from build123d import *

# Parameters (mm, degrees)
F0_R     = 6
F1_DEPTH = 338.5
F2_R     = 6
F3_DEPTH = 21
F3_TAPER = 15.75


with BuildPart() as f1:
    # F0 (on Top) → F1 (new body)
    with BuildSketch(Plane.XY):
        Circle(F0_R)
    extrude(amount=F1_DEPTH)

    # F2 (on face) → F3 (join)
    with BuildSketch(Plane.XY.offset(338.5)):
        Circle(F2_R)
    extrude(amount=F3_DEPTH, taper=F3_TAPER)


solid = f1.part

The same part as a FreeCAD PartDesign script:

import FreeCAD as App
import Part
import Sketcher
from FreeCAD import Vector
Q = App.Units.Quantity

doc = App.newDocument("Part")
params = doc.addObject("Spreadsheet::Sheet", "Params")
for row, (alias, value) in enumerate([
    ("sketch1_diameter", "12 mm"),
    ("pad1_length", "338.5 mm"),
    ("sketch2_diameter", "12 mm"),
    ("pad2_length", "21 mm"),
    ("pad2_taper", "-15.75 deg"),
], start=1):
    params.set(f"A{row}", alias)
    params.set(f"B{row}", "=" + value)
    params.setAlias(f"B{row}", alias)

body = doc.addObject("PartDesign::Body", "Body")

sketch1 = body.newObject("Sketcher::SketchObject", "Sketch")
sketch1.AttachmentSupport = (doc.getObject("XY_Plane"), [""])
sketch1.MapMode = "FlatFace"
sketch1.addGeometry(Part.Circle(Vector(0, 0, 0), Vector(0, 0, 1), 6), False)
sketch1.addConstraint([
    Sketcher.Constraint("Coincident", 0, 3, -1, 1),
    Sketcher.Constraint("Diameter", 0, Q("12 mm")),
])
sketch1.setExpression("Constraints[1]", "Params.sketch1_diameter")
pad1 = body.newObject("PartDesign::Pad", "Pad")
pad1.Profile = sketch1
pad1.setExpression("Length", "Params.pad1_length")

sketch2 = body.newObject("Sketcher::SketchObject", "Sketch001")
sketch2.AttachmentSupport = (doc.getObject("XY_Plane"), [""])
sketch2.MapMode = "FlatFace"
sketch2.AttachmentOffset = App.Placement(Vector(0, 0, 338.5), App.Rotation())
sketch2.addGeometry(Part.Circle(Vector(0, 0, 0), Vector(0, 0, 1), 6), False)
sketch2.addConstraint([
    Sketcher.Constraint("Coincident", 0, 3, -1, 1),
    Sketcher.Constraint("Diameter", 0, Q("12 mm")),
])
sketch2.setExpression("Constraints[1]", "Params.sketch2_diameter")
pad2 = body.newObject("PartDesign::Pad", "Pad001")
pad2.Profile = sketch2
pad2.setExpression("Length", "Params.pad2_length")
pad2.setExpression("TaperAngle", "Params.pad2_taper")

doc.recompute()
